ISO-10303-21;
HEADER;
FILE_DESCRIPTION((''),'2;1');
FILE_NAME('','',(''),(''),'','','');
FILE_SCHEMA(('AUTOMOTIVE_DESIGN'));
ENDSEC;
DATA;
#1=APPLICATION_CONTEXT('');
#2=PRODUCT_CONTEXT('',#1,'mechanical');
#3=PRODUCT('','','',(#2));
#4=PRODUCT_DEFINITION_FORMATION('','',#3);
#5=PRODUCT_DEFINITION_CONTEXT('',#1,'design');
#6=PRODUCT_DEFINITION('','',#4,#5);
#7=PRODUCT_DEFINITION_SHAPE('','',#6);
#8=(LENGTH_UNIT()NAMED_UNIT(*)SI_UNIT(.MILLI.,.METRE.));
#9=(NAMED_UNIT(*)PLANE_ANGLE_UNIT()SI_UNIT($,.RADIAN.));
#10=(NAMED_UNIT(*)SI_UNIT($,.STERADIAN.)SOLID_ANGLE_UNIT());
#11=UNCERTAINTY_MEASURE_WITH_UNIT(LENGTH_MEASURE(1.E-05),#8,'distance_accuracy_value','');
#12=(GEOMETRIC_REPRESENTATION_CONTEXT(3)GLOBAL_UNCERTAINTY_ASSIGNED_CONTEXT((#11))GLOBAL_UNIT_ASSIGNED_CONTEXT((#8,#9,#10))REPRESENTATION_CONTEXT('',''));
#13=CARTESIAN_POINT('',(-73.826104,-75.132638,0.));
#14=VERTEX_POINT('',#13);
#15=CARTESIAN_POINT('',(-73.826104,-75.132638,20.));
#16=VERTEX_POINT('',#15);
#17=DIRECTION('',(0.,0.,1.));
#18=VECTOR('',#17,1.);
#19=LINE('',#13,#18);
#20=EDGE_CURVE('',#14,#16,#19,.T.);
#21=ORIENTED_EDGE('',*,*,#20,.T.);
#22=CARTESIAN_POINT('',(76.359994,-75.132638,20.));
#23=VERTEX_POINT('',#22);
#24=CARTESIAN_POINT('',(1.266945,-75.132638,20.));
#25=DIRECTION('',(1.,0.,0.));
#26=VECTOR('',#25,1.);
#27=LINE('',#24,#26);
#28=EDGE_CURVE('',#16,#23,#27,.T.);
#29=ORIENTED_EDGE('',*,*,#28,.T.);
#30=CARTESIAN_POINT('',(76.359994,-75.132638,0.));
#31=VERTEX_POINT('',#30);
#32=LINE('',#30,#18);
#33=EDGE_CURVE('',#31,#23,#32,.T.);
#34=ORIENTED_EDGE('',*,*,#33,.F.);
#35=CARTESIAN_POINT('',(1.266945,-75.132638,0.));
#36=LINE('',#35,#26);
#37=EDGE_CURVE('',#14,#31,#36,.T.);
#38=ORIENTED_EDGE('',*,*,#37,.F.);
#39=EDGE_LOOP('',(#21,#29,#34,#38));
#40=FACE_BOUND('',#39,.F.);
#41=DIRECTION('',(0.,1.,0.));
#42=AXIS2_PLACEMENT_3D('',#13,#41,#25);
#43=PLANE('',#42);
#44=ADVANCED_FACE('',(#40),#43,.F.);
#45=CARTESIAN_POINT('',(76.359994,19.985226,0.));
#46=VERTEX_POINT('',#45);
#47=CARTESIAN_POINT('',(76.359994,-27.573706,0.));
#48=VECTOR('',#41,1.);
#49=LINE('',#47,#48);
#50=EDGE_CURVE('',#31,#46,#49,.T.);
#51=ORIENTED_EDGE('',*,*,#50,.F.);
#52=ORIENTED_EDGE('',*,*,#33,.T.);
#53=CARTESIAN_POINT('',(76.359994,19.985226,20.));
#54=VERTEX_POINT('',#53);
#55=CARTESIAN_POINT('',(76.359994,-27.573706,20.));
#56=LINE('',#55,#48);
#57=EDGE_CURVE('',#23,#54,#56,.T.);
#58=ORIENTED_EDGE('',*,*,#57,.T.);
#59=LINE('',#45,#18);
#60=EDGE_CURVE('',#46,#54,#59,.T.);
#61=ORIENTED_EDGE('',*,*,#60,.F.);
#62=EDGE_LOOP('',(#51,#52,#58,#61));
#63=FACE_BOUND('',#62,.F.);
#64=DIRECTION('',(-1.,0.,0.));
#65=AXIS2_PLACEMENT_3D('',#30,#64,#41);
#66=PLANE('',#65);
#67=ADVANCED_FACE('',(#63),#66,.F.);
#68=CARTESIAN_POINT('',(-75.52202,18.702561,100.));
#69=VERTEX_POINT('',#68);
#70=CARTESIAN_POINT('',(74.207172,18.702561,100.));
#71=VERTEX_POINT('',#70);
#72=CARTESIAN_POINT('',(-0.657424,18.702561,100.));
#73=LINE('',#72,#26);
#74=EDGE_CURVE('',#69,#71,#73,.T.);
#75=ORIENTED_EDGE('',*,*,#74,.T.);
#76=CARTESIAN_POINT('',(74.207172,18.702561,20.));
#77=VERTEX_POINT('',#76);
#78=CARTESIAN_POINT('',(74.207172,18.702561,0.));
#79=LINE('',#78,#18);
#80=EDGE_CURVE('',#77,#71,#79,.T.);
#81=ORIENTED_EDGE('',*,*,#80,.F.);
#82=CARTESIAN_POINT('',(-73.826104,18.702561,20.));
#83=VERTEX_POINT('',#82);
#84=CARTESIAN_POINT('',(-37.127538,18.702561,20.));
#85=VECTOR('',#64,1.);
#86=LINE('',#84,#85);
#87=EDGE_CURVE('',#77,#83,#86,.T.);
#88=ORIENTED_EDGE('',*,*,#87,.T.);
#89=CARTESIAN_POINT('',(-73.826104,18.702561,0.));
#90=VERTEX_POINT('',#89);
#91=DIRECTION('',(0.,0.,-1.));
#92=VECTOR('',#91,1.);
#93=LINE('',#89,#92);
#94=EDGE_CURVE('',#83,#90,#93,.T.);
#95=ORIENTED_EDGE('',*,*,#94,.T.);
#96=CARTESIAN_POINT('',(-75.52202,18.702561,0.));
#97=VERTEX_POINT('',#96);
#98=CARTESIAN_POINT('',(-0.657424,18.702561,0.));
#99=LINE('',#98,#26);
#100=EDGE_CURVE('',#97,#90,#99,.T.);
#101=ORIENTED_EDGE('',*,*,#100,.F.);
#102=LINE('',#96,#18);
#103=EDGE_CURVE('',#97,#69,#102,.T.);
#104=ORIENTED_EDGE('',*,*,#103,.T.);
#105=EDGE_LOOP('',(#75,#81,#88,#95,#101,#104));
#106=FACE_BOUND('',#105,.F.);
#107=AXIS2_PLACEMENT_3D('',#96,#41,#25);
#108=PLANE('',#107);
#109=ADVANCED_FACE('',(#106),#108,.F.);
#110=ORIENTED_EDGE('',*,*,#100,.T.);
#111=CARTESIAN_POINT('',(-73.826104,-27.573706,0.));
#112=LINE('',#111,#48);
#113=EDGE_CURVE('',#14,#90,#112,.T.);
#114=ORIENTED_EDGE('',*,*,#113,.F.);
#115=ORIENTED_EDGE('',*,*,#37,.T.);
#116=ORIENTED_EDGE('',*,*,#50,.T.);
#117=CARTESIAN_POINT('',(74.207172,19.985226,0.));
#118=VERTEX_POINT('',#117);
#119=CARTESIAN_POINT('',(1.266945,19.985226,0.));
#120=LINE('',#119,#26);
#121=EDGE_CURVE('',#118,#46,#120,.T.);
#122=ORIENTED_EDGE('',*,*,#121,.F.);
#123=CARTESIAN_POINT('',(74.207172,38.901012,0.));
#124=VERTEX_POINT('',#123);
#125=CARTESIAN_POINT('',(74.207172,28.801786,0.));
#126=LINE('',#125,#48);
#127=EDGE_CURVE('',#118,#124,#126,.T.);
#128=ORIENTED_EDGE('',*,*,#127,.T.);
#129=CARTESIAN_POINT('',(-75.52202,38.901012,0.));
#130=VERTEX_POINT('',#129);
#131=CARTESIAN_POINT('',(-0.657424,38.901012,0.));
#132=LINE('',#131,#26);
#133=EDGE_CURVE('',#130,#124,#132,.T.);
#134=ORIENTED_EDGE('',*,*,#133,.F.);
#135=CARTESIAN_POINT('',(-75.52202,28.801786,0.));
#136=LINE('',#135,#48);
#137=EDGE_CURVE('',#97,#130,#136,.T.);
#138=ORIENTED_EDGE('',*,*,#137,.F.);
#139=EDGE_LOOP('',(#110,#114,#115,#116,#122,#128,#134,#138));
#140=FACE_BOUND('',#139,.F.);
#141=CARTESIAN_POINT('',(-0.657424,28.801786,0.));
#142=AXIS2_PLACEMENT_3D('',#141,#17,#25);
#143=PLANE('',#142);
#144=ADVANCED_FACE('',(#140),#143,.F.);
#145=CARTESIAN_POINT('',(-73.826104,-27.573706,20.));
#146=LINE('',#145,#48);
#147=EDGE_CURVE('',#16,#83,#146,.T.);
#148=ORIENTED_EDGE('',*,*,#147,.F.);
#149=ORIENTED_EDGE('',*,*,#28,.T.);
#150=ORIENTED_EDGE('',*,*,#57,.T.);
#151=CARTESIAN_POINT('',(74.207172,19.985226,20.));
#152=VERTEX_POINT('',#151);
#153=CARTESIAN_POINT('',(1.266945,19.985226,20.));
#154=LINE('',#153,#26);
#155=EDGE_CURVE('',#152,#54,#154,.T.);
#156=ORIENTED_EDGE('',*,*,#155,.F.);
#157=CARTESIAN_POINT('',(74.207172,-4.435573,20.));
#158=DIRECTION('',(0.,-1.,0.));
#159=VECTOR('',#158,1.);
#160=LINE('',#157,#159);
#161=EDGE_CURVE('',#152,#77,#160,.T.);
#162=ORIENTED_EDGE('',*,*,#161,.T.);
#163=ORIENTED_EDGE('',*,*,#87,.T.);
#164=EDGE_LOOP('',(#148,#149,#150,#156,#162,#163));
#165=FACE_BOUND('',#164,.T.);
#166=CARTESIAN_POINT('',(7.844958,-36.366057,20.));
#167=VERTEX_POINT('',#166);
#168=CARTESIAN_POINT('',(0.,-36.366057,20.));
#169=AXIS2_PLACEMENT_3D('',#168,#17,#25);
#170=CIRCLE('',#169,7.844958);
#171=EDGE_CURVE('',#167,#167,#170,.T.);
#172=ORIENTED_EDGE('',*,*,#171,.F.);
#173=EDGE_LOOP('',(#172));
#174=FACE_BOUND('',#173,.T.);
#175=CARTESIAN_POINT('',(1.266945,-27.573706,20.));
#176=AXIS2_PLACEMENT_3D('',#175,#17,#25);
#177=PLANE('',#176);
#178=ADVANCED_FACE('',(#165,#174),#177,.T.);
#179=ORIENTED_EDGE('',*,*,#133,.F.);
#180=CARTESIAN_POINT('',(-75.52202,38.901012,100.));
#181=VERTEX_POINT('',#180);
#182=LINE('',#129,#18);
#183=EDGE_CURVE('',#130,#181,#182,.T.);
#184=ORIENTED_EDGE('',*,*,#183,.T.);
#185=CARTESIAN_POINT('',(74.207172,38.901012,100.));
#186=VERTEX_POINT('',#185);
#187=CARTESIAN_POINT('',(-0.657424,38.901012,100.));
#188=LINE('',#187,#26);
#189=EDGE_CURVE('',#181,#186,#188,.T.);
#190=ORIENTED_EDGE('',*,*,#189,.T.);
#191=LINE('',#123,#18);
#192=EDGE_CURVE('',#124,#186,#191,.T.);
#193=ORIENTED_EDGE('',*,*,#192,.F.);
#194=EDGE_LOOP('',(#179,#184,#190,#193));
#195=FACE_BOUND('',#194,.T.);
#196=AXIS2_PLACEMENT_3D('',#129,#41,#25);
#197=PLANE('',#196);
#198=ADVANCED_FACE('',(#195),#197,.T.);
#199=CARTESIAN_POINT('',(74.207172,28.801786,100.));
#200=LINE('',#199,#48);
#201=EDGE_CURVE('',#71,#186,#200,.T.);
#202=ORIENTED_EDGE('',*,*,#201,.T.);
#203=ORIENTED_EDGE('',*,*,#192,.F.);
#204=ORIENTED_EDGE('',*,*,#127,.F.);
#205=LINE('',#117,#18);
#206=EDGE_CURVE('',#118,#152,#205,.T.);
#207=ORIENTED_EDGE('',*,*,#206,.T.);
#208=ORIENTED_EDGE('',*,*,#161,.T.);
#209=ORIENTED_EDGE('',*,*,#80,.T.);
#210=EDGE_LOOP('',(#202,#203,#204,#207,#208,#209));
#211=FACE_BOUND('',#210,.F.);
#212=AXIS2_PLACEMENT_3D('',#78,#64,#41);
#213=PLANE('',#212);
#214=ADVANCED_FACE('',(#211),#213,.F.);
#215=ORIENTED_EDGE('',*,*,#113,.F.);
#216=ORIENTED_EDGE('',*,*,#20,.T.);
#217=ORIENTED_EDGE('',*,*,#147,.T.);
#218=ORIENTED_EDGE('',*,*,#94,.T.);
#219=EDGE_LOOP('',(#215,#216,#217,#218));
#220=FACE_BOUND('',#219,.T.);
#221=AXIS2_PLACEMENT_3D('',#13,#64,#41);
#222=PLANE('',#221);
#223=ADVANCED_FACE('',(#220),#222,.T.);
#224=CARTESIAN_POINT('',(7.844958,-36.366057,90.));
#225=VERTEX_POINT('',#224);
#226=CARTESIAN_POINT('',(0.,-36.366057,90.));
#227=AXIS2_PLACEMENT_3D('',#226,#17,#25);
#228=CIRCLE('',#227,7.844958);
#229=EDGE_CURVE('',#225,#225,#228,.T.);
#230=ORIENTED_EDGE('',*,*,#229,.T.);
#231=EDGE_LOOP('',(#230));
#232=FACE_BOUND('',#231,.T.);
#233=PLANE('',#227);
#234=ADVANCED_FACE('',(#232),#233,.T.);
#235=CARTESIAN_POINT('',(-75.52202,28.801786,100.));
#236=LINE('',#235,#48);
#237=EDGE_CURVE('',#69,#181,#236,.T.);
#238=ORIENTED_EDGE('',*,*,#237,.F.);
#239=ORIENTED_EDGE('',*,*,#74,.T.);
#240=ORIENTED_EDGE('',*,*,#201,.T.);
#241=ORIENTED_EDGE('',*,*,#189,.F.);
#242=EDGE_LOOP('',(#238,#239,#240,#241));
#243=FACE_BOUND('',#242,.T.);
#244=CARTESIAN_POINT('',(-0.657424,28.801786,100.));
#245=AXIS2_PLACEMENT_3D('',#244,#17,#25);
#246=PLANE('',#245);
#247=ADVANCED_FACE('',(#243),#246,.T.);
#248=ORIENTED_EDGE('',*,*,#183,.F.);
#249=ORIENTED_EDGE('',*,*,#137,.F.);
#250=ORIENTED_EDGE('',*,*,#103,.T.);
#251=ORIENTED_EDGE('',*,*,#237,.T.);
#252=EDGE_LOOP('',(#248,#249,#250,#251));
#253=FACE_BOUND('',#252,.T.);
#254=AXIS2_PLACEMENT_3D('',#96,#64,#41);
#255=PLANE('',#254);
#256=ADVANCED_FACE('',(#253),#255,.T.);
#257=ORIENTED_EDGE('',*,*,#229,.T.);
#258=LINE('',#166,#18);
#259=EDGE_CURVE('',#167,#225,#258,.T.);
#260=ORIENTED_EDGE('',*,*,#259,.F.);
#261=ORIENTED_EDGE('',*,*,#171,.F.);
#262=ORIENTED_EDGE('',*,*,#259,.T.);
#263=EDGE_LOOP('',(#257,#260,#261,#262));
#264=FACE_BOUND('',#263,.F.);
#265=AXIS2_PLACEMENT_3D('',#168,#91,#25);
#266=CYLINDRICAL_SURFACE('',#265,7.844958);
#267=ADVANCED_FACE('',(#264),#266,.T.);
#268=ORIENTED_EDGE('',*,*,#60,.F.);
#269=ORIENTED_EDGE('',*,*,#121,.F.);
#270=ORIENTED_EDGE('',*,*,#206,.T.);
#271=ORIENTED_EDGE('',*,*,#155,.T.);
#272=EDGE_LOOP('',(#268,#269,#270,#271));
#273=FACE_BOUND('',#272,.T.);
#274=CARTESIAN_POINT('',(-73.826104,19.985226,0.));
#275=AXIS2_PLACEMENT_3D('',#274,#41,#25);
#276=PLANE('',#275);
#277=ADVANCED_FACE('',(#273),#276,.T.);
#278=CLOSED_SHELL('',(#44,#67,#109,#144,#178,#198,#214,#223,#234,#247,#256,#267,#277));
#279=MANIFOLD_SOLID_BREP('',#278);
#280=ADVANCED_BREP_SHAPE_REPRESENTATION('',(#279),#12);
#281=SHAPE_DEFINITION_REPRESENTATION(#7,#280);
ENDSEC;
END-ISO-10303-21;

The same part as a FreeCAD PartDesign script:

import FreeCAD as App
import Part
import Sketcher
from FreeCAD import Vector


def add_polygon(sketch, points):
    """Adds a closed chain of lines whose ends are joined by coincident constraints."""
    first, n = sketch.GeometryCount, len(points)
    for a, b in zip(points, points[1:] + points[:1]):
        sketch.addGeometry(Part.LineSegment(App.Vector(*a, 0), App.Vector(*b, 0)), False)
    for i in range(n):
        sketch.addConstraint(Sketcher.Constraint("Coincident", first + i, 2, first + (i + 1) % n, 1))

doc = App.newDocument("Part")
params = doc.addObject("Spreadsheet::Sheet", "Params")
for row, (alias, value) in enumerate([
    ("pad1_length", "20 mm"),
    ("pad2_length", "70 mm"),
    ("pad3_length", "100 mm"),
], start=1):
    params.set(f"A{row}", alias)
    params.set(f"B{row}", "=" + value)
    params.setAlias(f"B{row}", alias)

body = doc.addObject("PartDesign::Body", "Body")

# Sketch on XY plane
sketch1 = body.newObject("Sketcher::SketchObject", "Sketch")
sketch1.AttachmentSupport = (doc.getObject("XY_Plane"), [""])
sketch1.MapMode = "FlatFace"
add_polygon(sketch1, [(-74, 20), (-74, -75), (76, -75), (76, 20)])  # lines 0-3
sketch1.addConstraint([
    Sketcher.Constraint("Vertical", 0),
    Sketcher.Constraint("Horizontal", 1),
    Sketcher.Constraint("Vertical", 2),
    Sketcher.Constraint("Horizontal", 3),
    Sketcher.Constraint("DistanceX", 1, 1, 1, 2, 150.186099),
    Sketcher.Constraint("DistanceY", 0, 2, 0, 1, 95.117865),
    Sketcher.Constraint("DistanceY", 0, 2, -1, 1, 75.132638),
    Sketcher.Constraint("DistanceX", 0, 2, -1, 1, 73.826104),
])
pad1 = body.newObject("PartDesign::Pad", "Pad")
pad1.Profile = sketch1
pad1.setExpression("Length", "Params.pad1_length")

# Sketch on XY plane
sketch2 = body.newObject("Sketcher::SketchObject", "Sketch001")
sketch2.AttachmentSupport = (doc.getObject("XY_Plane"), [""])
sketch2.MapMode = "FlatFace"
sketch2.AttachmentOffset = App.Placement(Vector(0, 0, 20), App.Rotation())
sketch2.addGeometry(Part.Circle(Vector(0, -36, 0), Vector(0, 0, 1), 8), False)
sketch2.addConstraint([
    Sketcher.Constraint("PointOnObject", 0, 3, -2),
    Sketcher.Constraint("Diameter", 0, 15.689916),
    Sketcher.Constraint("DistanceY", 0, 3, -1, 1, 36.366057),
])
pad2 = body.newObject("PartDesign::Pad", "Pad001")
pad2.Profile = sketch2
pad2.setExpression("Length", "Params.pad2_length")

# Sketch on XY plane
sketch3 = body.newObject("Sketcher::SketchObject", "Sketch002")
sketch3.AttachmentSupport = (doc.getObject("XY_Plane"), [""])
sketch3.MapMode = "FlatFace"
add_polygon(sketch3, [(-76, 39), (-76, 19), (74, 19), (74, 39)])  # lines 0-3
sketch3.addConstraint([
    Sketcher.Constraint("Vertical", 0),
    Sketcher.Constraint("Horizontal", 1),
    Sketcher.Constraint("Vertical", 2),
    Sketcher.Constraint("Horizontal", 3),
    Sketcher.Constraint("DistanceY", 0, 2, 0, 1, 20.198451),
    Sketcher.Constraint("DistanceX", 1, 1, 1, 2, 149.729192),
    Sketcher.Constraint("DistanceX", 0, 2, -1, 1, 75.52202),
    Sketcher.Constraint("DistanceY", -1, 1, 0, 2, 18.702561),
])
pad3 = body.newObject("PartDesign::Pad", "Pad002")
pad3.Profile = sketch3
pad3.setExpression("Length", "Params.pad3_length")

doc.recompute()
